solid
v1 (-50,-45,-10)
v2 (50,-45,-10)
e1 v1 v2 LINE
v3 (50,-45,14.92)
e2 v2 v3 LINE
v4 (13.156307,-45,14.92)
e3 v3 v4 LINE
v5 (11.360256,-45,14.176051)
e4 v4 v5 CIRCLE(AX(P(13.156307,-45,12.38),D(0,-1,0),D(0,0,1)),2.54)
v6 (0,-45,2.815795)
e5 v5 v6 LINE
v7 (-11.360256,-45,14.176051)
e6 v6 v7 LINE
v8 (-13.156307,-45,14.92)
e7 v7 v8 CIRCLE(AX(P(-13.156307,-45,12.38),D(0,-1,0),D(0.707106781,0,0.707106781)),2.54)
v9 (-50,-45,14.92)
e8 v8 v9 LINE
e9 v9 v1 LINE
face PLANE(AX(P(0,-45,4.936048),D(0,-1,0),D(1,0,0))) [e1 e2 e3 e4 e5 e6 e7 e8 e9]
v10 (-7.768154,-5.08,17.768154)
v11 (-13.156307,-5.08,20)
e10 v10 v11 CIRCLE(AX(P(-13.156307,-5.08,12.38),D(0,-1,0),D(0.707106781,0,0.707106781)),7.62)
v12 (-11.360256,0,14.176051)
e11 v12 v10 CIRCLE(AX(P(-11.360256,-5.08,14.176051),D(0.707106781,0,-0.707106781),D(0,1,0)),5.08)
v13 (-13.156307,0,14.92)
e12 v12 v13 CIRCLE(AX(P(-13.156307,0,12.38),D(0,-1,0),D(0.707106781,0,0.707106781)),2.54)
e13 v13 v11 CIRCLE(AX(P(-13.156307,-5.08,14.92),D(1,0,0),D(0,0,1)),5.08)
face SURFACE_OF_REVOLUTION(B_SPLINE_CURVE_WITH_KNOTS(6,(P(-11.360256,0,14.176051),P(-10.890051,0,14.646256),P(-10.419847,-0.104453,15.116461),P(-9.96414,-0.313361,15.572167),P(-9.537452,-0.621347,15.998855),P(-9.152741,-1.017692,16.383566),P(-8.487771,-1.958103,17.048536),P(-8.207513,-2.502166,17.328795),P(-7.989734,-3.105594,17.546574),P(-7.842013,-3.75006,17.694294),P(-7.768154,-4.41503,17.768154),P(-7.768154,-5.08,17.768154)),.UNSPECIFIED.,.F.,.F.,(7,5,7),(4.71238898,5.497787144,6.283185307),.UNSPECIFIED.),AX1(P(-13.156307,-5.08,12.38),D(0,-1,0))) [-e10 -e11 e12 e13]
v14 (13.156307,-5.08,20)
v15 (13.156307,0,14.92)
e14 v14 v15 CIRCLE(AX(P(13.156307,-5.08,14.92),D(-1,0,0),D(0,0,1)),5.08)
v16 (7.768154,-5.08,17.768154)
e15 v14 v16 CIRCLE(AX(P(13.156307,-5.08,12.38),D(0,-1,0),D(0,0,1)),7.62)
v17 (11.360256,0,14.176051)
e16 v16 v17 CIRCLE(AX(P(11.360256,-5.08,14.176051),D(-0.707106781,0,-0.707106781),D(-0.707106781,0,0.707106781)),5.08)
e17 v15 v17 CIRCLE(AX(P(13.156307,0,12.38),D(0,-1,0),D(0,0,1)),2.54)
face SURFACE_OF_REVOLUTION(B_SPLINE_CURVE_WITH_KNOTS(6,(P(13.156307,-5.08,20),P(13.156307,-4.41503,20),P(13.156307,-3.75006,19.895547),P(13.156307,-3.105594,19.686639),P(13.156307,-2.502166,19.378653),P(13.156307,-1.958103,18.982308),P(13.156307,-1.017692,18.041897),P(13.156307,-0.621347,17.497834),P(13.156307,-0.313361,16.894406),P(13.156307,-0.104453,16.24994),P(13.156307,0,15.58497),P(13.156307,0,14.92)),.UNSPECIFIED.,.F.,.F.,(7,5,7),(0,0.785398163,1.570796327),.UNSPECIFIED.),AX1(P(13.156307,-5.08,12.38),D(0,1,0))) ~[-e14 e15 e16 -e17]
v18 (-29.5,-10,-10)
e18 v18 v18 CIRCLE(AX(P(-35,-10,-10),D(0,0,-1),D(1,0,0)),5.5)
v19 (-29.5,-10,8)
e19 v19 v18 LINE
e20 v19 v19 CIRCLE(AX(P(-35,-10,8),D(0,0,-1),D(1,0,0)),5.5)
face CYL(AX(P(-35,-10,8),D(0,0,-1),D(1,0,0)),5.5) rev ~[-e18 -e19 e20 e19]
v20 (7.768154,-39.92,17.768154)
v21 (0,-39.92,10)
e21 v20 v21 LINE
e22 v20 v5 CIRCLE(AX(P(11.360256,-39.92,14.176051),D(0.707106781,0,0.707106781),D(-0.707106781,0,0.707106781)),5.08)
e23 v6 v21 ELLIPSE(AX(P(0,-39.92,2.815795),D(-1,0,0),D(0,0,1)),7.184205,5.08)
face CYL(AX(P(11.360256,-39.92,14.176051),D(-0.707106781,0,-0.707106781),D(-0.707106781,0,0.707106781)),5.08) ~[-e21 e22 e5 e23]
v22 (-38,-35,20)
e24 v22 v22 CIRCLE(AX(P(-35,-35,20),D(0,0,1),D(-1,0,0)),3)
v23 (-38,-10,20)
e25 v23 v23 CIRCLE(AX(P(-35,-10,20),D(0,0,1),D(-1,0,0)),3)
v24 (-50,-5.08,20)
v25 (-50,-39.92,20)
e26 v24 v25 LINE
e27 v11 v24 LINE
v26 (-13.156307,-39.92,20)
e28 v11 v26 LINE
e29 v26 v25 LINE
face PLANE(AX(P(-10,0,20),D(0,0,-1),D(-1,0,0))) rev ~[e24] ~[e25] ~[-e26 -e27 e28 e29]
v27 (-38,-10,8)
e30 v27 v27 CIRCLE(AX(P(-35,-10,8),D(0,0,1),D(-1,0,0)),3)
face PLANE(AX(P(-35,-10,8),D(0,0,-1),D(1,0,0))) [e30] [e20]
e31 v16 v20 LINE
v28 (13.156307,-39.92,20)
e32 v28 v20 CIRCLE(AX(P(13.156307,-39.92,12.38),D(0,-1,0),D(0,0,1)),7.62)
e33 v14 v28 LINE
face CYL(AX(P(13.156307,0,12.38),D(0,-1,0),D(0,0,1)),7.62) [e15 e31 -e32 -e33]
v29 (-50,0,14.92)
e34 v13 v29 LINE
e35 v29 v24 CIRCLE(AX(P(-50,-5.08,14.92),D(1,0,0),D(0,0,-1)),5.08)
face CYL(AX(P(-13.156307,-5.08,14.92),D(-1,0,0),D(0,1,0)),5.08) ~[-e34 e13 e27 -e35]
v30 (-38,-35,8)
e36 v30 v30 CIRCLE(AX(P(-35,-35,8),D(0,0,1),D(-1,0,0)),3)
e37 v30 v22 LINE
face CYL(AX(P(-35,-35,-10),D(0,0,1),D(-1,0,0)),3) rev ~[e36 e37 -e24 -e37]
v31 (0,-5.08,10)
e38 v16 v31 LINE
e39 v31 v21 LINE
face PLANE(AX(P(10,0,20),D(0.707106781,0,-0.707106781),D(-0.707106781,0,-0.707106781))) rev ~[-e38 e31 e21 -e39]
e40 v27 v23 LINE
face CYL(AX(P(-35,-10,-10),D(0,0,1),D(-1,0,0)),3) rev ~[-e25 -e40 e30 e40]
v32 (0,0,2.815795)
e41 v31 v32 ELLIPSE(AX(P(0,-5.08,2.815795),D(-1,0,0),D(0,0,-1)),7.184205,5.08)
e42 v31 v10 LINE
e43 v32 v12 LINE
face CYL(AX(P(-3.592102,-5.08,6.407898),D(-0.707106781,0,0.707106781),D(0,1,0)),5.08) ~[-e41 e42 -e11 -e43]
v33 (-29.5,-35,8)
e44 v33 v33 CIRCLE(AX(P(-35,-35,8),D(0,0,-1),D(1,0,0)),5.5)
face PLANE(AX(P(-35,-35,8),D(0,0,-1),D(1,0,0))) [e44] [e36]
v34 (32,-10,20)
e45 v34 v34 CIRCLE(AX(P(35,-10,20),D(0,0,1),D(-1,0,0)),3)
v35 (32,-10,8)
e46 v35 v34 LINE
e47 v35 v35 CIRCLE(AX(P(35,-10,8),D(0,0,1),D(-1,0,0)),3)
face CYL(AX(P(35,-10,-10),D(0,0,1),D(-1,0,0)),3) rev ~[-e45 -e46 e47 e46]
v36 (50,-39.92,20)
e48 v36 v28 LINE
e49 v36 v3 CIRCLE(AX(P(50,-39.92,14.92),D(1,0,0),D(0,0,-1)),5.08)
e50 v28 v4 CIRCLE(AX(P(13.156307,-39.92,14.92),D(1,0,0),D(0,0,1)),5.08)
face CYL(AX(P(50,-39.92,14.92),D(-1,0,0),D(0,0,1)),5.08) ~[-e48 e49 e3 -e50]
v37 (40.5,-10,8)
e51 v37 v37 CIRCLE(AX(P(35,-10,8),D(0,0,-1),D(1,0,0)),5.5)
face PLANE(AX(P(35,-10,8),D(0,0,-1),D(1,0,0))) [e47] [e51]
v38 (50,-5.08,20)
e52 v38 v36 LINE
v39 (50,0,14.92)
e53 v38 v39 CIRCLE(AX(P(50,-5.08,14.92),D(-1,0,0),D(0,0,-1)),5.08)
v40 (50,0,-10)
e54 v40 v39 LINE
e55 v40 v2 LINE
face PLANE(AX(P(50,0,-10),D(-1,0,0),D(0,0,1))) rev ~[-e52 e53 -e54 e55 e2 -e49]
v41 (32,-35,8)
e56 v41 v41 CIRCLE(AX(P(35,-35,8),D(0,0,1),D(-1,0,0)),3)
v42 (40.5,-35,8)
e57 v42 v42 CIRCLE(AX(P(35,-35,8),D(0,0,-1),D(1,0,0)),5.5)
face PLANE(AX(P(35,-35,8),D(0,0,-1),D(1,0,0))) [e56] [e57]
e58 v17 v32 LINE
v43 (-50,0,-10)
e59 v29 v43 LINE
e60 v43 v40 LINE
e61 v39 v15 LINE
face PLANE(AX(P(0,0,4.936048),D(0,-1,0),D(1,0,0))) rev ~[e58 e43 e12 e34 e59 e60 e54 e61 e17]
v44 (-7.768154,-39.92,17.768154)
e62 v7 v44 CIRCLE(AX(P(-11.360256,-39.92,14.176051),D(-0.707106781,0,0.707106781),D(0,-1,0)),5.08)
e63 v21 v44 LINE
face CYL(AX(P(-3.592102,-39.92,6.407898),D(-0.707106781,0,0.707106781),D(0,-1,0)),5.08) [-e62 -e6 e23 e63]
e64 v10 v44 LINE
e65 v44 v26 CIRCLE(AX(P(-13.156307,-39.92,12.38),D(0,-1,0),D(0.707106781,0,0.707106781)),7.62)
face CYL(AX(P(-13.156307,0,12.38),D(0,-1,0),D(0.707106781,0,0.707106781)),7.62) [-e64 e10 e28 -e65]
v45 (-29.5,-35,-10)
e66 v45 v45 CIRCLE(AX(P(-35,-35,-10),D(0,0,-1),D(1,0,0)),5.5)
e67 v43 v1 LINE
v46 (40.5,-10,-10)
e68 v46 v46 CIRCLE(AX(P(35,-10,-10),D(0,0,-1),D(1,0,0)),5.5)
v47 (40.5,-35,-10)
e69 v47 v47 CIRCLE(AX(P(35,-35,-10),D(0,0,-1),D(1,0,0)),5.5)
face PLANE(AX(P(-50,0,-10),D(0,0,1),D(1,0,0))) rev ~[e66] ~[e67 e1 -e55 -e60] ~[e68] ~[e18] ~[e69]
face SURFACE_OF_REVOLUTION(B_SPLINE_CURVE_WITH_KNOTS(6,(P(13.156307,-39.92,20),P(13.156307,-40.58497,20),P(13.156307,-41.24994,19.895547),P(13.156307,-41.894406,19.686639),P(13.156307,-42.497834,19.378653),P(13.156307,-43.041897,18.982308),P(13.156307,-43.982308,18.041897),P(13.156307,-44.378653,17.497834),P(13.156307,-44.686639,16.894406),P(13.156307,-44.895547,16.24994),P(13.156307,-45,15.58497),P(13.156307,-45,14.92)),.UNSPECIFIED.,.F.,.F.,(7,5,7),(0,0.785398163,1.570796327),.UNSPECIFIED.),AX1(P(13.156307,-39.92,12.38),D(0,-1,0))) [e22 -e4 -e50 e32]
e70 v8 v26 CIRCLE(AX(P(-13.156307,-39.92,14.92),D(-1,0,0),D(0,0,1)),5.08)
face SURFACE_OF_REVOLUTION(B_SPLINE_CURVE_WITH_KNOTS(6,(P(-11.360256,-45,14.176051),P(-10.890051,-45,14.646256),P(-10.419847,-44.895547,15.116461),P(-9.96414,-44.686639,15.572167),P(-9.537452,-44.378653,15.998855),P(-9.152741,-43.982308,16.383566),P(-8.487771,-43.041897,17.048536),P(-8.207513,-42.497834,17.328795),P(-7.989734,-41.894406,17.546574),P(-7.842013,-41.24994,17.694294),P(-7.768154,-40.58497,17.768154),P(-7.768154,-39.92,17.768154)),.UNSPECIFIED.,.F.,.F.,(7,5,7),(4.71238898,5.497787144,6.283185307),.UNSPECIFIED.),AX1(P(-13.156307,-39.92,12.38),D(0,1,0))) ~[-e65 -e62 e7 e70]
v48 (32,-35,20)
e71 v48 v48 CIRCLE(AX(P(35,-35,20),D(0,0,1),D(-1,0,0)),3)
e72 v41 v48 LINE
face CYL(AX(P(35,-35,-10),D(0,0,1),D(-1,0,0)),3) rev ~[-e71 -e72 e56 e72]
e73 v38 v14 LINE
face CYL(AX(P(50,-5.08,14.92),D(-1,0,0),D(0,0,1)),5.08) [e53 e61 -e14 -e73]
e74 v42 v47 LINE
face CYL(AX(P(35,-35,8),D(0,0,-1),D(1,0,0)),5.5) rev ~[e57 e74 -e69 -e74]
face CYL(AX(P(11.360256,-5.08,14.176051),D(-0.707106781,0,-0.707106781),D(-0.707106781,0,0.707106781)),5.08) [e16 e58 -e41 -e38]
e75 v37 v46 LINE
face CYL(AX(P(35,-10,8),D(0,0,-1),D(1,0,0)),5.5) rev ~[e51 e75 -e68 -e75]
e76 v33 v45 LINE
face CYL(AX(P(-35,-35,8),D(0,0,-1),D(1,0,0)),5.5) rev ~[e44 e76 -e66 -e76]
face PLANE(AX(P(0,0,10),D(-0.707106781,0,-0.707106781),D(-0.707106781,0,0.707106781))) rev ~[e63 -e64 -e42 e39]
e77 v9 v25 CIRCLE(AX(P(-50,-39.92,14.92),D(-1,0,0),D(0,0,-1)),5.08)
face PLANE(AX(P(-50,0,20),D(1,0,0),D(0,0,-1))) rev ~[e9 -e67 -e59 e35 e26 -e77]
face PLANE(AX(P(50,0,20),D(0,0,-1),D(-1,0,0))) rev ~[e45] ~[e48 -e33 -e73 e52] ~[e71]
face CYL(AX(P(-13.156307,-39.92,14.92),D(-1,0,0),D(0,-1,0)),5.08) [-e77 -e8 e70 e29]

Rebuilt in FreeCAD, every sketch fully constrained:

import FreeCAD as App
import Part
import Sketcher

V = App.Vector
Q = App.Units.Quantity


def edges_at(feature, points):
    """Names of the edges that pass closest to the given points."""
    edges = feature.Shape.Edges
    near = lambda p: min(range(len(edges)), key=lambda i: edges[i].distToShape(Part.Vertex(*p))[0])
    return sorted({f"Edge{near(p) + 1}" for p in points})


def add_polygon(sketch, points):
    """Adds a closed chain of lines whose ends are joined by coincident constraints."""
    first, n = sketch.GeometryCount, len(points)
    for a, b in zip(points, points[1:] + points[:1]):
        sketch.addGeometry(Part.LineSegment(App.Vector(*a, 0), App.Vector(*b, 0)), False)
    for i in range(n):
        sketch.addConstraint(Sketcher.Constraint("Coincident", first + i, 2, first + (i + 1) % n, 1))

doc = App.newDocument("Part")
params = doc.addObject("Spreadsheet::Sheet", "Params")
for row, (alias, value) in enumerate([
    ("sketch1_width", "40 mm"),
    ("sketch1_width2", "100 mm"),
    ("sketch1_height", "30 mm"),
    ("pad1_length", "45 mm"),
    ("fillet_radius", "7.62 mm"),
    ("fillet2_radius", "5.08 mm"),
    ("sketch2_diameter", "6 mm"),
    ("hole_diameter", "6 mm"),
    ("hole_cbore_diameter", "11 mm"),
    ("hole_cbore_depth", "18 mm"),
], start=1):
    params.set(f"A{row}", alias)
    params.set(f"B{row}", "=" + value)
    params.setAlias(f"B{row}", alias)

body = doc.addObject("PartDesign::Body", "Body")

sketch1 = body.newObject("Sketcher::SketchObject", "Sketch")
sketch1.AttachmentSupport = (doc.getObject("XZ_Plane"), [""])
sketch1.MapMode = "FlatFace"
add_polygon(sketch1, [(50, 20), (10, 20), (0, 10), (-10, 20), (-50, 20), (-50, -10), (50, -10)])
sketch1.addConstraint([
    Sketcher.Constraint("Horizontal", 0),
    Sketcher.Constraint("Horizontal", 3),
    Sketcher.Constraint("Vertical", 4),
    Sketcher.Constraint("Horizontal", 5),
    Sketcher.Constraint("Vertical", 6),
    Sketcher.Constraint("Symmetric", 0, 2, 2, 2, -2),
    Sketcher.Constraint("PointOnObject", 1, 2, -2),
    Sketcher.Constraint("Perpendicular", 1, 2),
    Sketcher.Constraint("Equal", 0, 3),
    Sketcher.Constraint("DistanceX", 0, 2, 0, 1, Q("40 mm")),
    Sketcher.Constraint("DistanceX", 5, 1, 5, 2, Q("100 mm")),
    Sketcher.Constraint("DistanceY", 4, 2, 4, 1, Q("30 mm")),
    Sketcher.Constraint("DistanceY", -1, 1, 0, 2, Q("20 mm")),
])
sketch1.setExpression("Constraints[16]", "Params.sketch1_width")
sketch1.setExpression("Constraints[17]", "Params.sketch1_width2")
sketch1.setExpression("Constraints[18]", "Params.sketch1_height")
pad1 = body.newObject("PartDesign::Pad", "Pad")
pad1.Profile = sketch1
pad1.setExpression("Length", "Params.pad1_length")
doc.recompute()

fillet = body.newObject("PartDesign::Fillet", "Fillet")
fillet.Base = (pad1, edges_at(pad1, [(10, -22.5, 20), (-10, -22.5, 20)]))
fillet.setExpression("Radius", "Params.fillet_radius")
doc.recompute()

fillet2 = body.newObject("PartDesign::Fillet", "Fillet001")
fillet2.Base = (fillet, edges_at(fillet, [
    (-31.578, -45, 20),
    (31.578, -45, 20),
    (31.578, 0, 20),
    (-31.578, 0, 20),
]))
fillet2.setExpression("Radius", "Params.fillet2_radius")

sketch2 = body.newObject("Sketcher::SketchObject", "Sketch001")
sketch2.AttachmentSupport = (doc.getObject("XY_Plane"), [""])
sketch2.MapMode = "FlatFace"
sketch2.AttachmentOffset = App.Placement(V(0, 0, -10), App.Rotation())
sketch2.addGeometry([
    Part.Circle(V(35, -10, 0), V(0, 0, 1), 3),
    Part.Circle(V(35, -35, 0), V(0, 0, 1), 3),
    Part.Circle(V(-35, -35, 0), V(0, 0, 1), 3),
    Part.Circle(V(-35, -10, 0), V(0, 0, 1), 3),
], False)
sketch2.addConstraint([
    Sketcher.Constraint("Equal", 0, 1),
    Sketcher.Constraint("Equal", 1, 2),
    Sketcher.Constraint("Equal", 2, 3),
    Sketcher.Constraint("Symmetric", 1, 3, 2, 3, -2),
    Sketcher.Constraint("Symmetric", 0, 3, 3, 3, -2),
    Sketcher.Constraint("Vertical", 0, 3, 1, 3),
    Sketcher.Constraint("Diameter", 0, Q("6 mm")),
    Sketcher.Constraint("DistanceX", -1, 1, 0, 3, Q("35 mm")),
    Sketcher.Constraint("DistanceY", 0, 3, -1, 1, Q("10 mm")),
    Sketcher.Constraint("DistanceY", 1, 3, -1, 1, Q("35 mm")),
])
sketch2.setExpression("Constraints[6]", "Params.sketch2_diameter")
doc.recompute()
hole = body.newObject("PartDesign::Hole", "Hole")
hole.Profile = sketch2
hole.ThreadType = "None"
hole.setExpression("Diameter", "Params.hole_diameter")
hole.DepthType = "ThroughAll"
hole.HoleCutType = "Counterbore"
hole.setExpression("HoleCutDiameter", "Params.hole_cbore_diameter")
hole.setExpression("HoleCutDepth", "Params.hole_cbore_depth")
hole.Reversed = True

doc.recompute()
